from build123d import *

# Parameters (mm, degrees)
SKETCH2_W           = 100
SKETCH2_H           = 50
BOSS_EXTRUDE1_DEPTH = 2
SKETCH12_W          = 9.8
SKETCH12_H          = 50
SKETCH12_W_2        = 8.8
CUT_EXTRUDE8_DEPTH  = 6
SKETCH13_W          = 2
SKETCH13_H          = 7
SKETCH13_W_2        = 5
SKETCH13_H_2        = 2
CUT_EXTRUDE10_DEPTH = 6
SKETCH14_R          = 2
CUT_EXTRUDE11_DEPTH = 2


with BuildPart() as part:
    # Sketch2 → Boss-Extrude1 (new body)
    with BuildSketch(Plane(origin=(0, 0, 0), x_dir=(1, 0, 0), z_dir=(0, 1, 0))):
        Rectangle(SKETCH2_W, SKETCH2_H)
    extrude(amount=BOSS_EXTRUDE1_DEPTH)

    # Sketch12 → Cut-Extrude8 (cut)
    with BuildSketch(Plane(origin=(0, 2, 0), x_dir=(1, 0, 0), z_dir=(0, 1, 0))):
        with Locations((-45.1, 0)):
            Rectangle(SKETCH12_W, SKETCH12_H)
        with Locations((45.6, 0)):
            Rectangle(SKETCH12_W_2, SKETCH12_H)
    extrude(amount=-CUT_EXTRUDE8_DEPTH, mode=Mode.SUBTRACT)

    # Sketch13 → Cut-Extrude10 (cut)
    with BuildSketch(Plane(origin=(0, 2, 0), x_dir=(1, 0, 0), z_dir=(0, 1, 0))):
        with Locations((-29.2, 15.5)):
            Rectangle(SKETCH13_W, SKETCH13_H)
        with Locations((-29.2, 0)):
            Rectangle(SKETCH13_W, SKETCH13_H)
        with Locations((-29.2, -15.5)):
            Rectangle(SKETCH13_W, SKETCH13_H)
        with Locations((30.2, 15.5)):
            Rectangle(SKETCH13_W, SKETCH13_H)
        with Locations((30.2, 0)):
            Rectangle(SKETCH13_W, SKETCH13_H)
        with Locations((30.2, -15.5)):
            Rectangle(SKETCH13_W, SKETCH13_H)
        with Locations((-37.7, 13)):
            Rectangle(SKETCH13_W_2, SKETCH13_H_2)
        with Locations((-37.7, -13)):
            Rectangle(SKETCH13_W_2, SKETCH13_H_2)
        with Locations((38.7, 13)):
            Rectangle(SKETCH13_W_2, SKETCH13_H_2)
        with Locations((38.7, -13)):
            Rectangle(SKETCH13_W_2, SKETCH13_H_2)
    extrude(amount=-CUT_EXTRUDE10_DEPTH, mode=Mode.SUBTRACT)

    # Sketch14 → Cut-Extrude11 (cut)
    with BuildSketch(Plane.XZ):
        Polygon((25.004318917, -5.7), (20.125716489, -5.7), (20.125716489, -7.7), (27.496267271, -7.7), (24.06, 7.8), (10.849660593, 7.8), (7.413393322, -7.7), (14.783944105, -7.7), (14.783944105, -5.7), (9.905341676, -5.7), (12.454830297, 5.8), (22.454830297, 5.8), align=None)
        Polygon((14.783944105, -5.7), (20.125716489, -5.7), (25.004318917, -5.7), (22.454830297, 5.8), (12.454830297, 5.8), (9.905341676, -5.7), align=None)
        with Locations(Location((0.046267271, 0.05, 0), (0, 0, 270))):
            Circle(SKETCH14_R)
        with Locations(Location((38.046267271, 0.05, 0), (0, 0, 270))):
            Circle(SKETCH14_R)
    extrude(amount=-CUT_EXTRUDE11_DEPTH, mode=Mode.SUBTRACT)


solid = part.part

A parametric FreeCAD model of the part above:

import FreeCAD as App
import Part
import Sketcher

V = App.Vector
Q = App.Units.Quantity

doc = App.newDocument("Part")
body = doc.addObject("PartDesign::Body", "Body")

# Sketch on XZ plane
sketch1 = doc.addObject("Sketcher::SketchObject", "Sketch")
body.addObject(sketch1)
sketch1.AttachmentSupport = (doc.XZ_Plane, [""])
sketch1.MapMode = "FlatFace"
sketch1.addGeometry([
    Part.LineSegment(V(-50, -25, 0), V(-50, 25, 0)),
    Part.LineSegment(V(-50, 25, 0), V(50, 25, 0)),
    Part.LineSegment(V(50, 25, 0), V(50, -25, 0)),
    Part.LineSegment(V(50, -25, 0), V(-50, -25, 0)),
], False)
sketch1.addConstraint([
    Sketcher.Constraint("Coincident", 0, 2, 1, 1),
    Sketcher.Constraint("Coincident", 1, 2, 2, 1),
    Sketcher.Constraint("Coincident", 2, 2, 3, 1),
    Sketcher.Constraint("Coincident", 3, 2, 0, 1),
    Sketcher.Constraint("Vertical", 0),
    Sketcher.Constraint("Horizontal", 1),
    Sketcher.Constraint("Vertical", 2),
    Sketcher.Constraint("Horizontal", 3),
    Sketcher.Constraint("Symmetric", 0, 2, 2, 2, -1, 1),
    Sketcher.Constraint("DistanceX", 1, 1, 1, 2, Q("100 mm")),
    Sketcher.Constraint("DistanceY", 0, 1, 0, 2, Q("50 mm")),
])
pad1 = doc.addObject("PartDesign::Pad", "Pad")
body.addObject(pad1)
pad1.Profile = sketch1
pad1.Length = 2
pad1.Reversed = True

# Sketch on XZ plane
sketch2 = doc.addObject("Sketcher::SketchObject", "Sketch001")
body.addObject(sketch2)
sketch2.AttachmentSupport = (doc.XZ_Plane, [""])
sketch2.MapMode = "FlatFace"
sketch2.AttachmentOffset = App.Placement(V(0, 0, -2), App.Rotation())
sketch2.addGeometry([
    Part.LineSegment(V(-50, -25, 0), V(-50, 25, 0)),  # 0
    Part.LineSegment(V(-50, 25, 0), V(-40, 25, 0)),  # 1
    Part.LineSegment(V(-40, 25, 0), V(-40, -25, 0)),  # 2
    Part.LineSegment(V(-40, -25, 0), V(-50, -25, 0)),  # 3
    Part.LineSegment(V(41, -25, 0), V(41, 25, 0)),  # 4
    Part.LineSegment(V(41, 25, 0), V(50, 25, 0)),  # 5
    Part.LineSegment(V(50, 25, 0), V(50, -25, 0)),  # 6
    Part.LineSegment(V(50, -25, 0), V(41, -25, 0)),  # 7
], False)
sketch2.addConstraint([
    Sketcher.Constraint("Coincident", 0, 2, 1, 1),
    Sketcher.Constraint("Coincident", 1, 2, 2, 1),
    Sketcher.Constraint("Coincident", 2, 2, 3, 1),
    Sketcher.Constraint("Coincident", 3, 2, 0, 1),
    Sketcher.Constraint("Coincident", 4, 2, 5, 1),
    Sketcher.Constraint("Coincident", 5, 2, 6, 1),
    Sketcher.Constraint("Coincident", 6, 2, 7, 1),
    Sketcher.Constraint("Coincident", 7, 2, 4, 1),
    Sketcher.Constraint("Vertical", 0),
    Sketcher.Constraint("Horizontal", 1),
    Sketcher.Constraint("Vertical", 2),
    Sketcher.Constraint("Horizontal", 3),
    Sketcher.Constraint("Vertical", 4),
    Sketcher.Constraint("Horizontal", 5),
    Sketcher.Constraint("Vertical", 6),
    Sketcher.Constraint("Horizontal", 7),
    Sketcher.Constraint("Symmetric", 3, 2, 5, 2, -1, 1),
    Sketcher.Constraint("Horizontal", 1, 2, 4, 2),
    Sketcher.Constraint("Horizontal", 3, 2, 6, 2),
    Sketcher.Constraint("DistanceY", 0, 1, 0, 2, Q("50 mm")),
    Sketcher.Constraint("DistanceX", 1, 1, 1, 2, Q("9.8 mm")),
    Sketcher.Constraint("DistanceX", 5, 1, 5, 2, Q("8.8 mm")),
    Sketcher.Constraint("DistanceX", 0, 2, -1, 1, Q("50 mm")),
])
pocket1 = doc.addObject("PartDesign::Pocket", "Pocket")
body.addObject(pocket1)
pocket1.Profile = sketch2
pocket1.Length = 6
pocket1.Reversed = True

# Sketch on XZ plane
sketch3 = doc.addObject("Sketcher::SketchObject", "Sketch002")
body.addObject(sketch3)
sketch3.AttachmentSupport = (doc.XZ_Plane, [""])
sketch3.MapMode = "FlatFace"
sketch3.AttachmentOffset = App.Placement(V(0, 0, -2), App.Rotation())
sketch3.addGeometry([
    Part.LineSegment(V(-30.2, -19, 0), V(-30.2, -12, 0)),  # 0
    Part.LineSegment(V(-30.2, -12, 0), V(-28.2, -12, 0)),  # 1
    Part.LineSegment(V(-28.2, -12, 0), V(-28.2, -19, 0)),  # 2
    Part.LineSegment(V(-28.2, -19, 0), V(-30.2, -19, 0)),  # 3
    Part.LineSegment(V(-30.2, -3.5, 0), V(-30.2, 3.5, 0)),  # 4
    Part.LineSegment(V(-30.2, 3.5, 0), V(-28.2, 3.5, 0)),  # 5
    Part.LineSegment(V(-28.2, 3.5, 0), V(-28.2, -3.5, 0)),  # 6
    Part.LineSegment(V(-28.2, -3.5, 0), V(-30.2, -3.5, 0)),  # 7
    Part.LineSegment(V(-30.2, 12, 0), V(-30.2, 19, 0)),  # 8
    Part.LineSegment(V(-30.2, 19, 0), V(-28.2, 19, 0)),  # 9
    Part.LineSegment(V(-28.2, 19, 0), V(-28.2, 12, 0)),  # 10
    Part.LineSegment(V(-28.2, 12, 0), V(-30.2, 12, 0)),  # 11
    Part.LineSegment(V(29.2, -19, 0), V(29.2, -12, 0)),  # 12
    Part.LineSegment(V(29.2, -12, 0), V(31.2, -12, 0)),  # 13
    Part.LineSegment(V(31.2, -12, 0), V(31.2, -19, 0)),  # 14
    Part.LineSegment(V(31.2, -19, 0), V(29.2, -19, 0)),  # 15
    Part.LineSegment(V(29.2, -3.5, 0), V(29.2, 3.5, 0)),  # 16
    Part.LineSegment(V(29.2, 3.5, 0), V(31.2, 3.5, 0)),  # 17
    Part.LineSegment(V(31.2, 3.5, 0), V(31.2, -3.5, 0)),  # 18
    Part.LineSegment(V(31.2, -3.5, 0), V(29.2, -3.5, 0)),  # 19
    Part.LineSegment(V(29.2, 12, 0), V(29.2, 19, 0)),  # 20
    Part.LineSegment(V(29.2, 19, 0), V(31.2, 19, 0)),  # 21
    Part.LineSegment(V(31.2, 19, 0), V(31.2, 12, 0)),  # 22
    Part.LineSegment(V(31.2, 12, 0), V(29.2, 12, 0)),  # 23
    Part.LineSegment(V(-40.2, -14, 0), V(-40.2, -12, 0)),  # 24
    Part.LineSegment(V(-40.2, -12, 0), V(-35.2, -12, 0)),  # 25
    Part.LineSegment(V(-35.2, -12, 0), V(-35.2, -14, 0)),  # 26
    Part.LineSegment(V(-35.2, -14, 0), V(-40.2, -14, 0)),  # 27
    Part.LineSegment(V(-40.2, 12, 0), V(-40.2, 14, 0)),  # 28
    Part.LineSegment(V(-40.2, 14, 0), V(-35.2, 14, 0)),  # 29
    Part.LineSegment(V(-35.2, 14, 0), V(-35.2, 12, 0)),  # 30
    Part.LineSegment(V(-35.2, 12, 0), V(-40.2, 12, 0)),  # 31
    Part.LineSegment(V(36.2, -14, 0), V(36.2, -12, 0)),  # 32
    Part.LineSegment(V(36.2, -12, 0), V(41.2, -12, 0)),  # 33
    Part.LineSegment(V(41.2, -12, 0), V(41.2, -14, 0)),  # 34
    Part.LineSegment(V(41.2, -14, 0), V(36.2, -14, 0)),  # 35
    Part.LineSegment(V(36.2, 12, 0), V(36.2, 14, 0)),  # 36
    Part.LineSegment(V(36.2, 14, 0), V(41.2, 14, 0)),  # 37
    Part.LineSegment(V(41.2, 14, 0), V(41.2, 12, 0)),  # 38
    Part.LineSegment(V(41.2, 12, 0), V(36.2, 12, 0)),  # 39
], False)
sketch3.addConstraint([
    Sketcher.Constraint("Coincident", 0, 2, 1, 1),
    Sketcher.Constraint("Coincident", 1, 2, 2, 1),
    Sketcher.Constraint("Coincident", 2, 2, 3, 1),
    Sketcher.Constraint("Coincident", 3, 2, 0, 1),
    Sketcher.Constraint("Coincident", 4, 2, 5, 1),
    Sketcher.Constraint("Coincident", 5, 2, 6, 1),
    Sketcher.Constraint("Coincident", 6, 2, 7, 1),
    Sketcher.Constraint("Coincident", 7, 2, 4, 1),
    Sketcher.Constraint("Coincident", 8, 2, 9, 1),
    Sketcher.Constraint("Coincident", 9, 2, 10, 1),
    Sketcher.Constraint("Coincident", 10, 2, 11, 1),
    Sketcher.Constraint("Coincident", 11, 2, 8, 1),
    Sketcher.Constraint("Coincident", 12, 2, 13, 1),
    Sketcher.Constraint("Coincident", 13, 2, 14, 1),
    Sketcher.Constraint("Coincident", 14, 2, 15, 1),
    Sketcher.Constraint("Coincident", 15, 2, 12, 1),
    Sketcher.Constraint("Coincident", 16, 2, 17, 1),
    Sketcher.Constraint("Coincident", 17, 2, 18, 1),
    Sketcher.Constraint("Coincident", 18, 2, 19, 1),
    Sketcher.Constraint("Coincident", 19, 2, 16, 1),
    Sketcher.Constraint("Coincident", 20, 2, 21, 1),
    Sketcher.Constraint("Coincident", 21, 2, 22, 1),
    Sketcher.Constraint("Coincident", 22, 2, 23, 1),
    Sketcher.Constraint("Coincident", 23, 2, 20, 1),
    Sketcher.Constraint("Coincident", 24, 2, 25, 1),
    Sketcher.Constraint("Coincident", 25, 2, 26, 1),
    Sketcher.Constraint("Coincident", 26, 2, 27, 1),
    Sketcher.Constraint("Coincident", 27, 2, 24, 1),
    Sketcher.Constraint("Coincident", 28, 2, 29, 1),
    Sketcher.Constraint("Coincident", 29, 2, 30, 1),
    Sketcher.Constraint("Coincident", 30, 2, 31, 1),
    Sketcher.Constraint("Coincident", 31, 2, 28, 1),
    Sketcher.Constraint("Coincident", 32, 2, 33, 1),
    Sketcher.Constraint("Coincident", 33, 2, 34, 1),
    Sketcher.Constraint("Coincident", 34, 2, 35, 1),
    Sketcher.Constraint("Coincident", 35, 2, 32, 1),
    Sketcher.Constraint("Coincident", 36, 2, 37, 1),
    Sketcher.Constraint("Coincident", 37, 2, 38, 1),
    Sketcher.Constraint("Coincident", 38, 2, 39, 1),
    Sketcher.Constraint("Coincident", 39, 2, 36, 1),
    Sketcher.Constraint("Vertical", 0),
    Sketcher.Constraint("Horizontal", 1),
    Sketcher.Constraint("Vertical", 2),
    Sketcher.Constraint("Horizontal", 3),
    Sketcher.Constraint("Vertical", 4),
    Sketcher.Constraint("Horizontal", 5),
    Sketcher.Constraint("Vertical", 6),
    Sketcher.Constraint("Horizontal", 7),
    Sketcher.Constraint("Vertical", 8),
    Sketcher.Constraint("Horizontal", 9),
    Sketcher.Constraint("Vertical", 10),
    Sketcher.Constraint("Horizontal", 11),
    Sketcher.Constraint("Vertical", 12),
    Sketcher.Constraint("Horizontal", 13),
    Sketcher.Constraint("Vertical", 14),
    Sketcher.Constraint("Horizontal", 15),
    Sketcher.Constraint("Vertical", 16),
    Sketcher.Constraint("Horizontal", 17),
    Sketcher.Constraint("Vertical", 18),
    Sketcher.Constraint("Horizontal", 19),
    Sketcher.Constraint("Vertical", 20),
    Sketcher.Constraint("Horizontal", 21),
    Sketcher.Constraint("Vertical", 22),
    Sketcher.Constraint("Horizontal", 23),
    Sketcher.Constraint("Vertical", 24),
    Sketcher.Constraint("Horizontal", 25),
    Sketcher.Constraint("Vertical", 26),
    Sketcher.Constraint("Horizontal", 27),
    Sketcher.Constraint("Vertical", 28),
    Sketcher.Constraint("Horizontal", 29),
    Sketcher.Constraint("Vertical", 30),
    Sketcher.Constraint("Horizontal", 31),
    Sketcher.Constraint("Vertical", 32),
    Sketcher.Constraint("Horizontal", 33),
    Sketcher.Constraint("Vertical", 34),
    Sketcher.Constraint("Horizontal", 35),
    Sketcher.Constraint("Vertical", 36),
    Sketcher.Constraint("Horizontal", 37),
    Sketcher.Constraint("Vertical", 38),
    Sketcher.Constraint("Horizontal", 39),
    Sketcher.Constraint("Symmetric", 3, 2, 8, 2, -1),
    Sketcher.Constraint("Symmetric", 1, 2, 10, 2, -1),
    Sketcher.Constraint("Symmetric", 15, 2, 20, 2, -1),
    Sketcher.Constraint("Symmetric", 13, 2, 22, 2, -1),
    Sketcher.Constraint("Symmetric", 27, 2, 28, 2, -1),
    Sketcher.Constraint("Symmetric", 25, 2, 30, 2, -1),
    Sketcher.Constraint("Symmetric", 35, 2, 36, 2, -1),
    Sketcher.Constraint("Symmetric", 33, 2, 38, 2, -1),
    Sketcher.Constraint("Horizontal", 1, 2, 12, 2),
    Sketcher.Constraint("Horizontal", 3, 2, 14, 2),
    Sketcher.Constraint("Horizontal", 5, 2, 16, 2),
    Sketcher.Constraint("Horizontal", 7, 2, 18, 2),
    Sketcher.Constraint("Horizontal", 13, 2, 24, 2),
    Sketcher.Constraint("Horizontal", 25, 2, 32, 2),
    Sketcher.Constraint("Horizontal", 27, 2, 34, 2),
    Sketcher.Constraint("Vertical", 3, 2, 4, 2),
    Sketcher.Constraint("Vertical", 2, 2, 5, 2),
    Sketcher.Constraint("Vertical", 15, 2, 16, 2),
    Sketcher.Constraint("Vertical", 14, 2, 17, 2),
    Sketcher.Constraint("Equal", 11, 13),
    Sketcher.Constraint("Equal", 31, 33),
    Sketcher.Constraint("Equal", 2, 4),
    Sketcher.Constraint("Equal", 23, 24),
    Sketcher.Constraint("DistanceX", 1, 1, 1, 2, Q("2 mm")),
    Sketcher.Constraint("DistanceX", 25, 1, 25, 2, Q("5 mm")),
    Sketcher.Constraint("DistanceY", 0, 1, 0, 2, Q("7 mm")),
    Sketcher.Constraint("DistanceY", 0, 2, -1, 1, Q("12 mm")),
    Sketcher.Constraint("DistanceX", 24, 2, 0, 2, Q("10 mm")),
    Sketcher.Constraint("DistanceX", 13, 2, 32, 2, Q("5 mm")),
    Sketcher.Constraint("DistanceX", 0, 2, -1, 1, Q("30.2 mm")),
    Sketcher.Constraint("DistanceY", -1, 1, 4, 2, Q("3.5 mm")),
    Sketcher.Constraint("DistanceX", -1, 1, 12, 2, Q("29.2 mm")),
])
pocket2 = doc.addObject("PartDesign::Pocket", "Pocket001")
body.addObject(pocket2)
pocket2.Profile = sketch3
pocket2.Length = 6
pocket2.Reversed = True

# Sketch on XZ plane
sketch4 = doc.addObject("Sketcher::SketchObject", "Sketch003")
body.addObject(sketch4)
sketch4.AttachmentSupport = (doc.XZ_Plane, [""])
sketch4.MapMode = "FlatFace"
sketch4.addGeometry([
    Part.LineSegment(V(20.1, -5.7, 0), V(20.1, -7.7, 0)),  # 0
    Part.LineSegment(V(20.1, -7.7, 0), V(27.5, -7.7, 0)),  # 1
    Part.LineSegment(V(27.5, -7.7, 0), V(24.1, 7.8, 0)),  # 2
    Part.LineSegment(V(24.1, 7.8, 0), V(10.8, 7.8, 0)),  # 3
    Part.LineSegment(V(10.8, 7.8, 0), V(7.4, -7.7, 0)),  # 4
    Part.LineSegment(V(7.4, -7.7, 0), V(14.8, -7.7, 0)),  # 5
    Part.LineSegment(V(14.8, -7.7, 0), V(14.8, -5.7, 0)),  # 6
    Part.LineSegment(V(14.8, -5.7, 0), V(20.1, -5.7, 0)),  # 7
    Part.Circle(V(0, 0.1, 0), V(0, 0, 1), 2),  # 8
    Part.Circle(V(38, 0.1, 0), V(0, 0, 1), 2),  # 9
], False)
sketch4.addConstraint([
    Sketcher.Constraint("Coincident", 0, 2, 1, 1),
    Sketcher.Constraint("Coincident", 1, 2, 2, 1),
    Sketcher.Constraint("Coincident", 2, 2, 3, 1),
    Sketcher.Constraint("Coincident", 3, 2, 4, 1),
    Sketcher.Constraint("Coincident", 4, 2, 5, 1),
    Sketcher.Constraint("Coincident", 5, 2, 6, 1),
    Sketcher.Constraint("Coincident", 6, 2, 7, 1),
    Sketcher.Constraint("Coincident", 7, 2, 0, 1),
    Sketcher.Constraint("Vertical", 0),
    Sketcher.Constraint("Horizontal", 1),
    Sketcher.Constraint("Horizontal", 3),
    Sketcher.Constraint("Horizontal", 5),
    Sketcher.Constraint("Vertical", 6),
    Sketcher.Constraint("Horizontal", 7),
    Sketcher.Constraint("Equal", 8, 9),
    Sketcher.Constraint("Horizontal", 8, 3, 9, 3),
    Sketcher.Constraint("Horizontal", 1, 2, 4, 2),
    Sketcher.Constraint("Equal", 1, 5),
    Sketcher.Constraint("Equal", 2, 4),
    Sketcher.Constraint("Diameter", 8, Q("4 mm")),
    Sketcher.Constraint("DistanceY", 0, 2, 0, 1, Q("2 mm")),
    Sketcher.Constraint("Angle", 2, Q("102.5 deg")),
    Sketcher.Constraint("DistanceX", 8, 3, 9, 3, Q("38 mm")),
    Sketcher.Constraint("DistanceY", 0, 2, -1, 1, Q("7.7 mm")),
    Sketcher.Constraint("DistanceY", -1, 1, 2, 2, Q("7.8 mm")),
    Sketcher.Constraint("DistanceY", -1, 1, 8, 3, Q("0.05 mm")),
    Sketcher.Constraint("DistanceX", -1, 1, 2, 2, Q("24.06 mm")),
    Sketcher.Constraint("DistanceX", 1, 2, 9, 3, Q("10.55 mm")),
    Sketcher.Constraint("DistanceX", 1, 1, 1, 2, Q("7.370551 mm")),
    Sketcher.Constraint("DistanceX", 3, 2, 3, 1, Q("13.210339 mm")),
])
pocket3 = doc.addObject("PartDesign::Pocket", "Pocket002")
body.addObject(pocket3)
pocket3.Profile = sketch4
pocket3.Length = 2

doc.recompute()
